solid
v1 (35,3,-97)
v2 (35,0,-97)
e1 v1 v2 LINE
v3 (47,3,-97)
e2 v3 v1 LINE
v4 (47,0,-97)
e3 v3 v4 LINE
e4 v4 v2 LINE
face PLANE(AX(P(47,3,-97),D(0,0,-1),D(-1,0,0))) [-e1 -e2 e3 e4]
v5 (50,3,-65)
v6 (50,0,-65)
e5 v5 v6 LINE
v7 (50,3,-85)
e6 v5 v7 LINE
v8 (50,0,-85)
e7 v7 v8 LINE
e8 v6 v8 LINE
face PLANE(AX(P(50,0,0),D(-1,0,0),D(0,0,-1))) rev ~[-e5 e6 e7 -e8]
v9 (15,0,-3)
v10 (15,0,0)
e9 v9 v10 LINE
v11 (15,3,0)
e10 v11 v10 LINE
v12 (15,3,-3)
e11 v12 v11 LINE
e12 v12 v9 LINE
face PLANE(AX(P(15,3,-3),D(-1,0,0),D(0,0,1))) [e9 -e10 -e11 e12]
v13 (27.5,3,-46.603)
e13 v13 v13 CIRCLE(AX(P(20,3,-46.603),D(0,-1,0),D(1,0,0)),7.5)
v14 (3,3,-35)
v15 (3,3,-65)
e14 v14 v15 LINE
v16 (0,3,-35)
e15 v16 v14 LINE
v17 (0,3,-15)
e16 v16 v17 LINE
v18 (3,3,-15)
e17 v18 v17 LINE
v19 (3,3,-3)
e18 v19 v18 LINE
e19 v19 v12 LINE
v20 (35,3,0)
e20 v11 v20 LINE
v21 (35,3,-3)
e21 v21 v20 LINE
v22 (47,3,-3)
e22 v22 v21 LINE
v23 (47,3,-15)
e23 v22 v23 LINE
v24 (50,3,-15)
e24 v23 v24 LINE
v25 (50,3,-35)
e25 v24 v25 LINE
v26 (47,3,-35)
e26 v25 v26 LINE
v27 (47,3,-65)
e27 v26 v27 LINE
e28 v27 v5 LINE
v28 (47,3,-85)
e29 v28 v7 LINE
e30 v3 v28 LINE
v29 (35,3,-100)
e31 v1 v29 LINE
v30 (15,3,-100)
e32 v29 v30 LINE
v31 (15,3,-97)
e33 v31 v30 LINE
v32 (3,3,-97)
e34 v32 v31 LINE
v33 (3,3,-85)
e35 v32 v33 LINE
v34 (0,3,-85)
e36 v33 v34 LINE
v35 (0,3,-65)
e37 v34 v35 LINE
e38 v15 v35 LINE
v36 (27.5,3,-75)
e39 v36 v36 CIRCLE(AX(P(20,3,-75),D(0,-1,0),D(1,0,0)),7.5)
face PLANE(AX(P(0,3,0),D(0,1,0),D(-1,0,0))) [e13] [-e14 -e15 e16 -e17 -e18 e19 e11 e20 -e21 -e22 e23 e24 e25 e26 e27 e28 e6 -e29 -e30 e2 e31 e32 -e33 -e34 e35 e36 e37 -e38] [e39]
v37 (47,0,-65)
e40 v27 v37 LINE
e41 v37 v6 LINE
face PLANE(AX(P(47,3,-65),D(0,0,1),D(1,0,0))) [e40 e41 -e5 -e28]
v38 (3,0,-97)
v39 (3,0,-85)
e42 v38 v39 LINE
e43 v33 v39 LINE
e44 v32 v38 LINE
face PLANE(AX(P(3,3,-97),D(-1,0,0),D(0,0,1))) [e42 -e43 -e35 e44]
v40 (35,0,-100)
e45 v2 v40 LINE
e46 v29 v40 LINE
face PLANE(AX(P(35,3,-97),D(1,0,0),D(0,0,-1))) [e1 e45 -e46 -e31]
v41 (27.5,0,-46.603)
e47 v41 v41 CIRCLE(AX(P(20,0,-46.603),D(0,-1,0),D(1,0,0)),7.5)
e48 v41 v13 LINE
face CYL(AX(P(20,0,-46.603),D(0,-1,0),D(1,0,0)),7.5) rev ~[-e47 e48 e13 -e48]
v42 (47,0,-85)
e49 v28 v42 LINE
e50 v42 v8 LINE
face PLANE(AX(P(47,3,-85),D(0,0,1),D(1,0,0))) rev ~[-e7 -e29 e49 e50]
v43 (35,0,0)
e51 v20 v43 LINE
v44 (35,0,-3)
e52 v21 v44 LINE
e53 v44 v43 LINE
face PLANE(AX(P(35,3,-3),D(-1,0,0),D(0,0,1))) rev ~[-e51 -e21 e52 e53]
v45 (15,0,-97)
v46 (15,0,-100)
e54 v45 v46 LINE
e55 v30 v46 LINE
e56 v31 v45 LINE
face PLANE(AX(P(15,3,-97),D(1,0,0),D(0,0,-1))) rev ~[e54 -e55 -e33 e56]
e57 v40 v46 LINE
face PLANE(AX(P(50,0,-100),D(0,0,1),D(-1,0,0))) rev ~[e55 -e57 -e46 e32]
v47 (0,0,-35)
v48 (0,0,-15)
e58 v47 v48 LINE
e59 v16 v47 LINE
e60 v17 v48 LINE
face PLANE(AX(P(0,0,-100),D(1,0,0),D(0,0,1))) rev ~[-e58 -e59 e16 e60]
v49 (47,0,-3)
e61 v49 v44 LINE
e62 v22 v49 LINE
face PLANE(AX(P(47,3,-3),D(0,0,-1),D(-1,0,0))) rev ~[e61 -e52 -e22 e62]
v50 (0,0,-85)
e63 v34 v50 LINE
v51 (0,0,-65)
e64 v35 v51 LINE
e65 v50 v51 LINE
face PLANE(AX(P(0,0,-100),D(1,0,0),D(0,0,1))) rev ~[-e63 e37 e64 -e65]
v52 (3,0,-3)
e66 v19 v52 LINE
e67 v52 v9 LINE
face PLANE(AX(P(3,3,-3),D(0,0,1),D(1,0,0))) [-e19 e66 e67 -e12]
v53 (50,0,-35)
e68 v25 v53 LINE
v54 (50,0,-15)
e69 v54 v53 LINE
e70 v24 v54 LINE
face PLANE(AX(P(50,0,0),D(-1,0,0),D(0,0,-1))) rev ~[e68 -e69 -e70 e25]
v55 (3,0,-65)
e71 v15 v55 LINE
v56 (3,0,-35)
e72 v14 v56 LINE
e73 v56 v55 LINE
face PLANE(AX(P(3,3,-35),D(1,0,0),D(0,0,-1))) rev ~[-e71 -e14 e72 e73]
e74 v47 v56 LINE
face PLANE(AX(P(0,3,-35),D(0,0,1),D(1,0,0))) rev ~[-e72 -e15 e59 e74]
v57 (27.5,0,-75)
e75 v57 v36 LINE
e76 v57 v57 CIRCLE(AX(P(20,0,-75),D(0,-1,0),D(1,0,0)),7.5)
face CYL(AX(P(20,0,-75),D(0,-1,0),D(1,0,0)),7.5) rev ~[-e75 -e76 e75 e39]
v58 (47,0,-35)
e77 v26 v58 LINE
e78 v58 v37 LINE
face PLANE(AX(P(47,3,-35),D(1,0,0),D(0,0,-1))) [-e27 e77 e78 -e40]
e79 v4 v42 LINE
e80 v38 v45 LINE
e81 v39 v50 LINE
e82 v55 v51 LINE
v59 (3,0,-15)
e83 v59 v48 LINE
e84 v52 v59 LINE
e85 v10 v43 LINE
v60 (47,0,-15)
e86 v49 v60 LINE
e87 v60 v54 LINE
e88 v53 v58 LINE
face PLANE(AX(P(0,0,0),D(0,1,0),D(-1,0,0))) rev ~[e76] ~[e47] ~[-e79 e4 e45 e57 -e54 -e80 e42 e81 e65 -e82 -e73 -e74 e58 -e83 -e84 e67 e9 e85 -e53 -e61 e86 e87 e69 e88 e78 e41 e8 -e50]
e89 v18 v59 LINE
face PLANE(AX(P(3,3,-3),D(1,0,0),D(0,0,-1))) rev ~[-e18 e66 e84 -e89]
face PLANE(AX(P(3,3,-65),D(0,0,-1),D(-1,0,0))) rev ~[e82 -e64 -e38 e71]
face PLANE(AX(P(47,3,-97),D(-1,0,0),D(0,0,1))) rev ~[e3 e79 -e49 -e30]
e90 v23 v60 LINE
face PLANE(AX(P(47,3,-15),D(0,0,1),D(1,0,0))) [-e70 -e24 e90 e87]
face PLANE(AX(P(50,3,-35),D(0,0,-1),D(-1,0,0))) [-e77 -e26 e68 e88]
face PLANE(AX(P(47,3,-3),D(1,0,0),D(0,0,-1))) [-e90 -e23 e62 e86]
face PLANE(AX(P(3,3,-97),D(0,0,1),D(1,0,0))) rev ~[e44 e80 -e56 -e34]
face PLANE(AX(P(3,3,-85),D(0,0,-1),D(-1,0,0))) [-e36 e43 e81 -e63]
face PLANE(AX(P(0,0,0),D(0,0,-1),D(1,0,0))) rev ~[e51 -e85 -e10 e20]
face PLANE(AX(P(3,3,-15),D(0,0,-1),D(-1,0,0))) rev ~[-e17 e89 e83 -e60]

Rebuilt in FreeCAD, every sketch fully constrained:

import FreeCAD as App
import Part
import Sketcher
from FreeCAD import Vector


def add_polygon(sketch, points):
    """Adds a closed chain of lines whose ends are joined by coincident constraints."""
    first, n = sketch.GeometryCount, len(points)
    for a, b in zip(points, points[1:] + points[:1]):
        sketch.addGeometry(Part.LineSegment(App.Vector(*a, 0), App.Vector(*b, 0)), False)
    for i in range(n):
        sketch.addConstraint(Sketcher.Constraint("Coincident", first + i, 2, first + (i + 1) % n, 1))

doc = App.newDocument("Part")
params = doc.addObject("Spreadsheet::Sheet", "Params")
for row, (alias, value) in enumerate([
    ("sketch1_width", "50 mm"),
    ("sketch1_height", "100 mm"),
    ("pad1_length", "3 mm"),
    ("sketch2_width", "15 mm"),
    ("sketch2_width2", "3 mm"),
    ("sketch2_height", "30 mm"),
    ("sketch3_diameter", "15 mm"),
], start=1):
    params.set(f"A{row}", alias)
    params.set(f"B{row}", "=" + value)
    params.setAlias(f"B{row}", alias)

body = doc.addObject("PartDesign::Body", "Body")

# Sketch on XZ plane
sketch1 = body.newObject("Sketcher::SketchObject", "Sketch")
sketch1.AttachmentSupport = (doc.getObject("XZ_Plane"), [""])
sketch1.MapMode = "FlatFace"
add_polygon(sketch1, [(0, -100), (0, 0), (50, 0), (50, -100)])  # lines 0-3
sketch1.addConstraint(Sketcher.Constraint("Vertical", 0))
sketch1.addConstraint(Sketcher.Constraint("Horizontal", 1))
sketch1.addConstraint(Sketcher.Constraint("Vertical", 2))
sketch1.addConstraint(Sketcher.Constraint("Horizontal", 3))
sketch1.addConstraint(Sketcher.Constraint("Coincident", 0, 2, -1, 1))
sketch1.addConstraint(Sketcher.Constraint("DistanceX", 1, 1, 1, 2, 50.0))
sketch1.addConstraint(Sketcher.Constraint("DistanceY", 0, 1, 0, 2, 100.0))
sketch1.setExpression("Constraints[9]", "Params.sketch1_width")
sketch1.setExpression("Constraints[10]", "Params.sketch1_height")
pad1 = body.newObject("PartDesign::Pad", "Pad")
pad1.Profile = sketch1
pad1.setExpression("Length", "Params.pad1_length")
pad1.Reversed = True

# Sketch on XZ plane
sketch2 = body.newObject("Sketcher::SketchObject", "Sketch001")
sketch2.AttachmentSupport = (doc.getObject("XZ_Plane"), [""])
sketch2.MapMode = "FlatFace"
sketch2.AttachmentOffset = App.Placement(Vector(0, 0, -3), App.Rotation())
add_polygon(sketch2, [(0, -15), (0, 0), (15, 0), (15, -3), (3, -3), (3, -15)])  # lines 0-5
add_polygon(sketch2, [(0, -65), (0, -35), (3, -35), (3, -65)])  # lines 6-9
add_polygon(sketch2, [(35, -3), (35, 0), (50, 0), (50, -15), (47, -15), (47, -3)])  # lines 10-15
add_polygon(sketch2, [(0, -100), (0, -85), (3, -85), (3, -97), (15, -97), (15, -100)])  # lines 16-21
add_polygon(sketch2, [(47, -35), (50, -35), (50, -65), (47, -65)])  # lines 22-25
add_polygon(sketch2, [(35, -100), (35, -97), (47, -97), (47, -85), (50, -85), (50, -100)])  # lines 26-31
sketch2.addConstraint(Sketcher.Constraint("Vertical", 0))
sketch2.addConstraint(Sketcher.Constraint("Horizontal", 1))
sketch2.addConstraint(Sketcher.Constraint("Vertical", 2))
sketch2.addConstraint(Sketcher.Constraint("Horizontal", 3))
sketch2.addConstraint(Sketcher.Constraint("Vertical", 4))
sketch2.addConstraint(Sketcher.Constraint("Horizontal", 5))
sketch2.addConstraint(Sketcher.Constraint("Vertical", 6))
sketch2.addConstraint(Sketcher.Constraint("Horizontal", 7))
sketch2.addConstraint(Sketcher.Constraint("Vertical", 8))
sketch2.addConstraint(Sketcher.Constraint("Horizontal", 9))
sketch2.addConstraint(Sketcher.Constraint("Vertical", 10))
sketch2.addConstraint(Sketcher.Constraint("Horizontal", 11))
sketch2.addConstraint(Sketcher.Constraint("Vertical", 12))
sketch2.addConstraint(Sketcher.Constraint("Horizontal", 13))
sketch2.addConstraint(Sketcher.Constraint("Vertical", 14))
sketch2.addConstraint(Sketcher.Constraint("Horizontal", 15))
sketch2.addConstraint(Sketcher.Constraint("Vertical", 16))
sketch2.addConstraint(Sketcher.Constraint("Horizontal", 17))
sketch2.addConstraint(Sketcher.Constraint("Vertical", 18))
sketch2.addConstraint(Sketcher.Constraint("Horizontal", 19))
sketch2.addConstraint(Sketcher.Constraint("Vertical", 20))
sketch2.addConstraint(Sketcher.Constraint("Horizontal", 21))
sketch2.addConstraint(Sketcher.Constraint("Horizontal", 22))
sketch2.addConstraint(Sketcher.Constraint("Vertical", 23))
sketch2.addConstraint(Sketcher.Constraint("Horizontal", 24))
sketch2.addConstraint(Sketcher.Constraint("Vertical", 25))
sketch2.addConstraint(Sketcher.Constraint("Vertical", 26))
sketch2.addConstraint(Sketcher.Constraint("Horizontal", 27))
sketch2.addConstraint(Sketcher.Constraint("Vertical", 28))
sketch2.addConstraint(Sketcher.Constraint("Horizontal", 29))
sketch2.addConstraint(Sketcher.Constraint("Vertical", 30))
sketch2.addConstraint(Sketcher.Constraint("Horizontal", 31))
sketch2.addConstraint(Sketcher.Constraint("Coincident", 0, 2, -1, 1))
sketch2.addConstraint(Sketcher.Constraint("PointOnObject", 6, 2, -2))
sketch2.addConstraint(Sketcher.Constraint("PointOnObject", 10, 2, -1))
sketch2.addConstraint(Sketcher.Constraint("PointOnObject", 16, 2, -2))
sketch2.addConstraint(Sketcher.Constraint("Horizontal", 5, 2, 12, 2))
sketch2.addConstraint(Sketcher.Constraint("Horizontal", 3, 2, 14, 2))
sketch2.addConstraint(Sketcher.Constraint("Horizontal", 7, 2, 22, 2))
sketch2.addConstraint(Sketcher.Constraint("Horizontal", 9, 2, 23, 2))
sketch2.addConstraint(Sketcher.Constraint("Horizontal", 19, 2, 26, 2))
sketch2.addConstraint(Sketcher.Constraint("Horizontal", 17, 2, 28, 2))
sketch2.addConstraint(Sketcher.Constraint("Horizontal", 21, 2, 30, 2))
sketch2.addConstraint(Sketcher.Constraint("Vertical", 4, 2, 7, 2))
sketch2.addConstraint(Sketcher.Constraint("Vertical", 8, 2, 17, 2))
sketch2.addConstraint(Sketcher.Constraint("Vertical", 2, 2, 19, 2))
sketch2.addConstraint(Sketcher.Constraint("Vertical", 12, 2, 22, 2))
sketch2.addConstraint(Sketcher.Constraint("Vertical", 14, 2, 24, 2))
sketch2.addConstraint(Sketcher.Constraint("Vertical", 15, 2, 26, 2))
sketch2.addConstraint(Sketcher.Constraint("Vertical", 25, 2, 27, 2))
sketch2.addConstraint(Sketcher.Constraint("Vertical", 23, 2, 29, 2))
sketch2.addConstraint(Sketcher.Constraint("Equal", 1, 11))
sketch2.addConstraint(Sketcher.Constraint("Equal", 9, 13))
sketch2.addConstraint(Sketcher.Constraint("Equal", 31, 0))
sketch2.addConstraint(Sketcher.Constraint("Equal", 29, 2))
sketch2.addConstraint(Sketcher.Constraint("Equal", 12, 16))
sketch2.addConstraint(Sketcher.Constraint("Equal", 14, 18))
sketch2.addConstraint(Sketcher.Constraint("DistanceX", 1, 1, 1, 2, 15.0))
sketch2.addConstraint(Sketcher.Constraint("DistanceX", 5, 2, 5, 1, 3.0))
sketch2.addConstraint(Sketcher.Constraint("DistanceY", 6, 1, 6, 2, 30.0))
sketch2.addConstraint(Sketcher.Constraint("DistanceY", 6, 2, 5, 2, 20.0))
sketch2.addConstraint(Sketcher.Constraint("DistanceX", 1, 2, 10, 2, 20.0))
sketch2.addConstraint(Sketcher.Constraint("DistanceY", 16, 2, 9, 2, 20.0))
sketch2.setExpression("Constraints[89]", "Params.sketch2_width")
sketch2.setExpression("Constraints[90]", "Params.sketch2_width2")
sketch2.setExpression("Constraints[91]", "Params.sketch2_height")
pocket1 = body.newObject("PartDesign::Pocket", "Pocket")
pocket1.Profile = sketch2
pocket1.Type = "ThroughAll"
pocket1.Reversed = True

# Sketch on XZ plane
sketch3 = body.newObject("Sketcher::SketchObject", "Sketch002")
sketch3.AttachmentSupport = (doc.getObject("XZ_Plane"), [""])
sketch3.MapMode = "FlatFace"
sketch3.addGeometry(Part.Circle(Vector(20, -47, 0), Vector(0, 0, 1), 8), False)
sketch3.addGeometry(Part.Circle(Vector(20, -75, 0), Vector(0, 0, 1), 8), False)
sketch3.addConstraint(Sketcher.Constraint("Equal", 0, 1))
sketch3.addConstraint(Sketcher.Constraint("Vertical", 0, 3, 1, 3))
sketch3.addConstraint(Sketcher.Constraint("Diameter", 0, 15.0))
sketch3.addConstraint(Sketcher.Constraint("DistanceX", -1, 1, 0, 3, 20.0))
sketch3.addConstraint(Sketcher.Constraint("DistanceY", 1, 3, -1, 1, 75.0))
sketch3.addConstraint(Sketcher.Constraint("DistanceY", 1, 3, 0, 3, 28.397))
sketch3.setExpression("Constraints[2]", "Params.sketch3_diameter")
pocket2 = body.newObject("PartDesign::Pocket", "Pocket001")
pocket2.Profile = sketch3
pocket2.Type = "ThroughAll"

doc.recompute()
